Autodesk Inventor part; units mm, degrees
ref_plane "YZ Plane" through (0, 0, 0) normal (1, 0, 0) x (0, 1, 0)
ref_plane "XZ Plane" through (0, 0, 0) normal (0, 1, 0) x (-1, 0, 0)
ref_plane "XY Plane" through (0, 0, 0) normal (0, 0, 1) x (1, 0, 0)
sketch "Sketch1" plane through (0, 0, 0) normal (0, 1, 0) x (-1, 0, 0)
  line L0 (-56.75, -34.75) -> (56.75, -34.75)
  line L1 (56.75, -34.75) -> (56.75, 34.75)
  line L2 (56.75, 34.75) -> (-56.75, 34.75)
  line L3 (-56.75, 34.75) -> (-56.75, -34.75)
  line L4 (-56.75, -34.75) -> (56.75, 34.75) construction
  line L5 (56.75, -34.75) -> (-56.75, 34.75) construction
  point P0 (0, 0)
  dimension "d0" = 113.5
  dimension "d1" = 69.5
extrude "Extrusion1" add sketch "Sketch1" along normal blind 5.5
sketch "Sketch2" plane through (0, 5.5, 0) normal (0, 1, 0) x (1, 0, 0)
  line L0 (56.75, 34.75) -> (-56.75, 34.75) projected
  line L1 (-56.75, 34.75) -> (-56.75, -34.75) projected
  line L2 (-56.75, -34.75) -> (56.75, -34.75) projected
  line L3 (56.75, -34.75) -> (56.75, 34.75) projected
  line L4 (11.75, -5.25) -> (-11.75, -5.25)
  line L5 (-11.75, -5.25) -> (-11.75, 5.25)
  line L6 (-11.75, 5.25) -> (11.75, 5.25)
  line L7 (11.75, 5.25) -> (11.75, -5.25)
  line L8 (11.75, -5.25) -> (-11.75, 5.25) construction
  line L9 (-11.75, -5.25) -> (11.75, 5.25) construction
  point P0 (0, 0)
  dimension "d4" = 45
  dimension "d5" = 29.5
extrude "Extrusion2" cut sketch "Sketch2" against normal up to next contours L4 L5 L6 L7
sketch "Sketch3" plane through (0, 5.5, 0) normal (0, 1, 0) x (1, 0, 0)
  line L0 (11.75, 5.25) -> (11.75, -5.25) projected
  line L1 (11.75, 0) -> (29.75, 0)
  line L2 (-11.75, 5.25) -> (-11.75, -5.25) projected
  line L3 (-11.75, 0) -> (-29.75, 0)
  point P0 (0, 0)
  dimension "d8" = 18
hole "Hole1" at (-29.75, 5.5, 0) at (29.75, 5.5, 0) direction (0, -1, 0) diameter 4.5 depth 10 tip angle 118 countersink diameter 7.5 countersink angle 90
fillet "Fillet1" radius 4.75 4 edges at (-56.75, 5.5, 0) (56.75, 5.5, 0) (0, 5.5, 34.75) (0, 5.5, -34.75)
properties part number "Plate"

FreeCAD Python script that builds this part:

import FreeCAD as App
import Part
import Sketcher
Q = App.Units.Quantity


def edges_at(feature, points):
    """Names of the edges that pass closest to the given points."""
    edges = feature.Shape.Edges
    near = lambda p: min(range(len(edges)), key=lambda i: edges[i].distToShape(Part.Vertex(*p))[0])
    return sorted({f"Edge{near(p) + 1}" for p in points})

doc = App.newDocument("Part")
params = doc.addObject("Spreadsheet::Sheet", "Params")
for row, (alias, value) in enumerate([
    ("sketch1_width", "113.5 mm"),
    ("sketch1_height", "69.5 mm"),
    ("pad1_length", "5.5 mm"),
    ("sketch2_width", "23.5 mm"),
    ("sketch2_height", "10.5 mm"),
    ("sketch3_diameter", "4.5 mm"),
    ("hole_diameter", "4.5 mm"),
    ("hole_depth", "10 mm"),
    ("hole_csink_diameter", "7.5 mm"),
    ("fillet_radius", "4.75 mm"),
], start=1):
    params.set(f"A{row}", alias)
    params.set(f"B{row}", "=" + value)
    params.setAlias(f"B{row}", alias)

body = doc.addObject("PartDesign::Body", "Body")

# Sketch on XZ plane
sketch1 = body.newObject("Sketcher::SketchObject", "Sketch")
sketch1.AttachmentSupport = (doc.getObject("XZ_Plane"), [""])
sketch1.MapMode = "FlatFace"
sketch1.addGeometry([
    Part.LineSegment(App.Vector(56.75, 34.75, 0), App.Vector(56.75, -34.75, 0)),
    Part.LineSegment(App.Vector(56.75, -34.75, 0), App.Vector(-56.75, -34.75, 0)),
    Part.LineSegment(App.Vector(-56.75, -34.75, 0), App.Vector(-56.75, 34.75, 0)),
    Part.LineSegment(App.Vector(-56.75, 34.75, 0), App.Vector(56.75, 34.75, 0)),
], False)
sketch1.addConstraint([
    Sketcher.Constraint("Coincident", 0, 2, 1, 1),
    Sketcher.Constraint("Coincident", 1, 2, 2, 1),
    Sketcher.Constraint("Coincident", 2, 2, 3, 1),
    Sketcher.Constraint("Coincident", 3, 2, 0, 1),
    Sketcher.Constraint("Vertical", 0),
    Sketcher.Constraint("Horizontal", 1),
    Sketcher.Constraint("Vertical", 2),
    Sketcher.Constraint("Horizontal", 3),
    Sketcher.Constraint("Symmetric", 0, 2, 2, 2, -1, 1),
    Sketcher.Constraint("DistanceX", 1, 2, 1, 1, Q("113.5 mm")),
    Sketcher.Constraint("DistanceY", 0, 2, 0, 1, Q("69.5 mm")),
])
sketch1.setExpression("Constraints[9]", "Params.sketch1_width")
sketch1.setExpression("Constraints[10]", "Params.sketch1_height")
pad1 = body.newObject("PartDesign::Pad", "Pad")
pad1.Profile = sketch1
pad1.setExpression("Length", "Params.pad1_length")
pad1.Reversed = True

# Sketch on XZ plane
sketch2 = body.newObject("Sketcher::SketchObject", "Sketch001")
sketch2.AttachmentSupport = (doc.getObject("XZ_Plane"), [""])
sketch2.MapMode = "FlatFace"
sketch2.AttachmentOffset = App.Placement(App.Vector(0, 0, -5.5), App.Rotation())
sketch2.addGeometry([
    Part.LineSegment(App.Vector(-11.75, 5.25, 0), App.Vector(11.75, 5.25, 0)),
    Part.LineSegment(App.Vector(11.75, 5.25, 0), App.Vector(11.75, -5.25, 0)),
    Part.LineSegment(App.Vector(11.75, -5.25, 0), App.Vector(-11.75, -5.25, 0)),
    Part.LineSegment(App.Vector(-11.75, -5.25, 0), App.Vector(-11.75, 5.25, 0)),
], False)
sketch2.addConstraint([
    Sketcher.Constraint("Coincident", 0, 2, 1, 1),
    Sketcher.Constraint("Coincident", 1, 2, 2, 1),
    Sketcher.Constraint("Coincident", 2, 2, 3, 1),
    Sketcher.Constraint("Coincident", 3, 2, 0, 1),
    Sketcher.Constraint("Horizontal", 0),
    Sketcher.Constraint("Vertical", 1),
    Sketcher.Constraint("Horizontal", 2),
    Sketcher.Constraint("Vertical", 3),
    Sketcher.Constraint("Symmetric", 0, 2, 2, 2, -1, 1),
    Sketcher.Constraint("DistanceX", 0, 1, 0, 2, Q("23.5 mm")),
    Sketcher.Constraint("DistanceY", 1, 2, 1, 1, Q("10.5 mm")),
])
sketch2.setExpression("Constraints[9]", "Params.sketch2_width")
sketch2.setExpression("Constraints[10]", "Params.sketch2_height")
pocket1 = body.newObject("PartDesign::Pocket", "Pocket")
pocket1.Profile = sketch2
pocket1.Type = "UpToFirst"
pocket1.Reversed = True

# Sketch on XZ plane
sketch3 = body.newObject("Sketcher::SketchObject", "Sketch002")
sketch3.AttachmentSupport = (doc.getObject("XZ_Plane"), [""])
sketch3.MapMode = "FlatFace"
sketch3.AttachmentOffset = App.Placement(App.Vector(0, 0, -5.5), App.Rotation())
sketch3.addGeometry([
    Part.Circle(App.Vector(-29.75, 0, 0), App.Vector(0, 0, 1), 2.25),
    Part.Circle(App.Vector(29.75, 0, 0), App.Vector(0, 0, 1), 2.25),
], False)
sketch3.addConstraint([
    Sketcher.Constraint("Equal", 0, 1),
    Sketcher.Constraint("Symmetric", 0, 3, 1, 3, -1, 1),
    Sketcher.Constraint("PointOnObject", 0, 3, -1),
    Sketcher.Constraint("Diameter", 0, Q("4.5 mm")),
    Sketcher.Constraint("DistanceX", 0, 3, 1, 3, Q("59.5 mm")),
])
sketch3.setExpression("Constraints[3]", "Params.sketch3_diameter")
doc.recompute()
hole = body.newObject("PartDesign::Hole", "Hole")
hole.Profile = sketch3
hole.ThreadType = "None"
hole.setExpression("Diameter", "Params.hole_diameter")
hole.DepthType = "Dimension"
hole.setExpression("Depth", "Params.hole_depth")
hole.DrillPoint = "Angled"
hole.DrillPointAngle = 118
hole.HoleCutType = "Countersink"
hole.setExpression("HoleCutDiameter", "Params.hole_csink_diameter")
hole.HoleCutCountersinkAngle = 90
hole.Reversed = True
doc.recompute()

fillet = body.newObject("PartDesign::Fillet", "Fillet")
fillet.Base = (hole, edges_at(hole, [
    (-56.75, 5.5, 0),
    (56.75, 5.5, 0),
    (0, 5.5, 34.75),
    (0, 5.5, -34.75),
]))
fillet.setExpression("Radius", "Params.fillet_radius")

doc.recompute()
